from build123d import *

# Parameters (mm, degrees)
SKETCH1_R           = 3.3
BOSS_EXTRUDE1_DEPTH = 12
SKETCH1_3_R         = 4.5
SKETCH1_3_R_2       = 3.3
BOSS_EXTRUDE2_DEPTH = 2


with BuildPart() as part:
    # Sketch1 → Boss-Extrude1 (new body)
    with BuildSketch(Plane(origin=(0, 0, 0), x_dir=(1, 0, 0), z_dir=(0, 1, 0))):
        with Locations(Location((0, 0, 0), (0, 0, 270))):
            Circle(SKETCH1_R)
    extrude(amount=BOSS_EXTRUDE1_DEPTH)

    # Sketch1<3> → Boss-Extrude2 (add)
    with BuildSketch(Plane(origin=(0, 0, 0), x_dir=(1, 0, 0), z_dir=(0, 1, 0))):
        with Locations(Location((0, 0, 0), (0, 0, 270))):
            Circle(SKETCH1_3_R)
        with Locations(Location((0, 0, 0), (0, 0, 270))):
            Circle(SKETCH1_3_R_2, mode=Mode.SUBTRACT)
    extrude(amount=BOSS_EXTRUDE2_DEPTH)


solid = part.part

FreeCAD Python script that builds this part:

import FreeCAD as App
import Part
import Sketcher
from FreeCAD import Vector
Q = App.Units.Quantity

doc = App.newDocument("Part")
params = doc.addObject("Spreadsheet::Sheet", "Params")
for row, (alias, value) in enumerate([
    ("sketch1_diameter", "6.6 mm"),
    ("pad1_length", "12 mm"),
    ("sketch2_diameter", "9 mm"),
    ("sketch2_diameter2", "6.6 mm"),
    ("pad2_length", "2 mm"),
], start=1):
    params.set(f"A{row}", alias)
    params.set(f"B{row}", "=" + value)
    params.setAlias(f"B{row}", alias)

body = doc.addObject("PartDesign::Body", "Body")

# Sketch on XZ plane
sketch1 = body.newObject("Sketcher::SketchObject", "Sketch")
sketch1.AttachmentSupport = (doc.getObject("XZ_Plane"), [""])
sketch1.MapMode = "FlatFace"
sketch1.addGeometry(Part.Circle(Vector(0, 0, 0), Vector(0, 0, 1), 3.3), False)
sketch1.addConstraint([
    Sketcher.Constraint("Coincident", 0, 3, -1, 1),
    Sketcher.Constraint("Diameter", 0, Q("6.6 mm")),
])
sketch1.setExpression("Constraints[1]", "Params.sketch1_diameter")
pad1 = body.newObject("PartDesign::Pad", "Pad")
pad1.Profile = sketch1
pad1.setExpression("Length", "Params.pad1_length")
pad1.Reversed = True

# Sketch on XZ plane
sketch2 = body.newObject("Sketcher::SketchObject", "Sketch001")
sketch2.AttachmentSupport = (doc.getObject("XZ_Plane"), [""])
sketch2.MapMode = "FlatFace"
sketch2.addGeometry([
    Part.Circle(Vector(0, 0, 0), Vector(0, 0, 1), 4.5),
    Part.Circle(Vector(0, 0, 0), Vector(0, 0, 1), 3.3),
], False)
sketch2.addConstraint([
    Sketcher.Constraint("Coincident", 0, 3, -1, 1),
    Sketcher.Constraint("Coincident", 1, 3, -1, 1),
    Sketcher.Constraint("Diameter", 0, Q("9 mm")),
    Sketcher.Constraint("Diameter", 1, Q("6.6 mm")),
])
sketch2.setExpression("Constraints[2]", "Params.sketch2_diameter")
sketch2.setExpression("Constraints[3]", "Params.sketch2_diameter2")
pad2 = body.newObject("PartDesign::Pad", "Pad001")
pad2.Profile = sketch2
pad2.setExpression("Length", "Params.pad2_length")
pad2.Reversed = True

doc.recompute()
